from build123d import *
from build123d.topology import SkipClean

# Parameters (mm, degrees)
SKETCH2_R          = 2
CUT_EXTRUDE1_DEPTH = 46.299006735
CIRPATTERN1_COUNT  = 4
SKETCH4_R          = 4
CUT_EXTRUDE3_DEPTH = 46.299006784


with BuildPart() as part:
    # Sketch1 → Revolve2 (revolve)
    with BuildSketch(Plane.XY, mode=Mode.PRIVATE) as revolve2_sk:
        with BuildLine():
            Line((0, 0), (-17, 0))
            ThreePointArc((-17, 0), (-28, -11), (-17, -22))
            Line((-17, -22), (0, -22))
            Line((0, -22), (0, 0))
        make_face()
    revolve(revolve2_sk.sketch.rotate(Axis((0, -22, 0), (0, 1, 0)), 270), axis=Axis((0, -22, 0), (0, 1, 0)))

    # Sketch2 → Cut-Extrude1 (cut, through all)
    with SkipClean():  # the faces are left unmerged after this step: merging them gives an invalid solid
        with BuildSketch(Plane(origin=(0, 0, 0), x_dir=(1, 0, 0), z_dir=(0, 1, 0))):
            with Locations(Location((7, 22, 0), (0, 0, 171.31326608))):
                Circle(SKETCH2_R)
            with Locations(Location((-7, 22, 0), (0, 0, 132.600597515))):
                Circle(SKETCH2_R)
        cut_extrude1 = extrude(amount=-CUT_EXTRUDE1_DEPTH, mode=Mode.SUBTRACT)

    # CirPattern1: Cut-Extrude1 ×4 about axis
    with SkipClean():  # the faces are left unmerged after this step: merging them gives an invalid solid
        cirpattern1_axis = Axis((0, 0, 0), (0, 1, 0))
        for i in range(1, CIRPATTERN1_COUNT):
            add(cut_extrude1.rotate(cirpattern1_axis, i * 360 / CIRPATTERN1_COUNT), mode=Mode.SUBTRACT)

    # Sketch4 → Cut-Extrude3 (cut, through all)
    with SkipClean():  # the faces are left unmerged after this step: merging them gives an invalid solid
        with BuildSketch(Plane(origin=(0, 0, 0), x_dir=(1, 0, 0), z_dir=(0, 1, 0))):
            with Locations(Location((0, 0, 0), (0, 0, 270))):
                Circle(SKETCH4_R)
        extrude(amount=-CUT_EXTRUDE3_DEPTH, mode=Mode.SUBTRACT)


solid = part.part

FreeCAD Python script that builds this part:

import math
import FreeCAD as App
import Part
import Sketcher

doc = App.newDocument("Part")
body = doc.addObject("PartDesign::Body", "Body")

# Sketch on XY plane
sketch1 = doc.addObject("Sketcher::SketchObject", "Sketch")
body.addObject(sketch1)
sketch1.AttachmentSupport = (doc.XY_Plane, [""])
sketch1.MapMode = "FlatFace"
sketch1.addGeometry([
    Part.LineSegment(App.Vector(0, 0, 0), App.Vector(-17, 0, 0)),
    Part.ArcOfCircle(Part.Circle(App.Vector(-17, -11, 0), App.Vector(0, 0, 1), 11), math.radians(90), math.radians(270)),
    Part.LineSegment(App.Vector(-17, -22, 0), App.Vector(0, -22, 0)),
    Part.LineSegment(App.Vector(0, -22, 0), App.Vector(0, 0, 0)),
], False)
sketch1.addConstraint([
    Sketcher.Constraint("Tangent", 0, 2, 1, 1),
    Sketcher.Constraint("Tangent", 1, 2, 2, 1),
    Sketcher.Constraint("Coincident", 2, 2, 3, 1),
    Sketcher.Constraint("Coincident", 3, 2, 0, 1),
    Sketcher.Constraint("Horizontal", 0),
    Sketcher.Constraint("Horizontal", 2),
    Sketcher.Constraint("Vertical", 3),
    Sketcher.Constraint("Coincident", 3, 2, -1, 1),
    Sketcher.Constraint("Radius", 1, 11.0),
    Sketcher.Constraint("DistanceX", 0, 2, 0, 1, 17.0),
])
revolution = doc.addObject("PartDesign::Revolution", "Revolution")
body.addObject(revolution)
revolution.Profile = sketch1
revolution.ReferenceAxis = (sketch1, ["V_Axis"])
revolution.Angle = 360

# Sketch on XZ plane
sketch2 = doc.addObject("Sketcher::SketchObject", "Sketch001")
body.addObject(sketch2)
sketch2.AttachmentSupport = (doc.XZ_Plane, [""])
sketch2.MapMode = "FlatFace"
sketch2.addGeometry([
    Part.Circle(App.Vector(7, -22, 0), App.Vector(0, 0, 1), 2),
    Part.Circle(App.Vector(-7, -22, 0), App.Vector(0, 0, 1), 2),
], False)
sketch2.addConstraint([
    Sketcher.Constraint("Equal", 0, 1),
    Sketcher.Constraint("Symmetric", 0, 3, 1, 3, -2),
    Sketcher.Constraint("Diameter", 0, 4.0),
    Sketcher.Constraint("DistanceX", -1, 1, 0, 3, 7.0),
    Sketcher.Constraint("DistanceY", 0, 3, -1, 1, 22.0),
])
pocket1 = doc.addObject("PartDesign::Pocket", "Pocket")
body.addObject(pocket1)
pocket1.Profile = sketch2
pocket1.Type = "ThroughAll"
pocket1.Reversed = True
doc.recompute()

polarpattern = doc.addObject("PartDesign::PolarPattern", "PolarPattern")
body.addObject(polarpattern)
polarpattern.Originals = [pocket1]
polarpattern.Axis = (doc.Y_Axis, [""])
polarpattern.Angle = 360
polarpattern.Occurrences = 4
body.Tip = polarpattern

# Sketch on XZ plane
sketch3 = doc.addObject("Sketcher::SketchObject", "Sketch002")
body.addObject(sketch3)
sketch3.AttachmentSupport = (doc.XZ_Plane, [""])
sketch3.MapMode = "FlatFace"
sketch3.addGeometry(Part.Circle(App.Vector(0, 0, 0), App.Vector(0, 0, 1), 4), False)
sketch3.addConstraint([
    Sketcher.Constraint("Coincident", 0, 3, -1, 1),
    Sketcher.Constraint("Diameter", 0, 8.0),
])
pocket2 = doc.addObject("PartDesign::Pocket", "Pocket001")
body.addObject(pocket2)
pocket2.Profile = sketch3
pocket2.Type = "ThroughAll"
pocket2.Reversed = True

doc.recompute()
